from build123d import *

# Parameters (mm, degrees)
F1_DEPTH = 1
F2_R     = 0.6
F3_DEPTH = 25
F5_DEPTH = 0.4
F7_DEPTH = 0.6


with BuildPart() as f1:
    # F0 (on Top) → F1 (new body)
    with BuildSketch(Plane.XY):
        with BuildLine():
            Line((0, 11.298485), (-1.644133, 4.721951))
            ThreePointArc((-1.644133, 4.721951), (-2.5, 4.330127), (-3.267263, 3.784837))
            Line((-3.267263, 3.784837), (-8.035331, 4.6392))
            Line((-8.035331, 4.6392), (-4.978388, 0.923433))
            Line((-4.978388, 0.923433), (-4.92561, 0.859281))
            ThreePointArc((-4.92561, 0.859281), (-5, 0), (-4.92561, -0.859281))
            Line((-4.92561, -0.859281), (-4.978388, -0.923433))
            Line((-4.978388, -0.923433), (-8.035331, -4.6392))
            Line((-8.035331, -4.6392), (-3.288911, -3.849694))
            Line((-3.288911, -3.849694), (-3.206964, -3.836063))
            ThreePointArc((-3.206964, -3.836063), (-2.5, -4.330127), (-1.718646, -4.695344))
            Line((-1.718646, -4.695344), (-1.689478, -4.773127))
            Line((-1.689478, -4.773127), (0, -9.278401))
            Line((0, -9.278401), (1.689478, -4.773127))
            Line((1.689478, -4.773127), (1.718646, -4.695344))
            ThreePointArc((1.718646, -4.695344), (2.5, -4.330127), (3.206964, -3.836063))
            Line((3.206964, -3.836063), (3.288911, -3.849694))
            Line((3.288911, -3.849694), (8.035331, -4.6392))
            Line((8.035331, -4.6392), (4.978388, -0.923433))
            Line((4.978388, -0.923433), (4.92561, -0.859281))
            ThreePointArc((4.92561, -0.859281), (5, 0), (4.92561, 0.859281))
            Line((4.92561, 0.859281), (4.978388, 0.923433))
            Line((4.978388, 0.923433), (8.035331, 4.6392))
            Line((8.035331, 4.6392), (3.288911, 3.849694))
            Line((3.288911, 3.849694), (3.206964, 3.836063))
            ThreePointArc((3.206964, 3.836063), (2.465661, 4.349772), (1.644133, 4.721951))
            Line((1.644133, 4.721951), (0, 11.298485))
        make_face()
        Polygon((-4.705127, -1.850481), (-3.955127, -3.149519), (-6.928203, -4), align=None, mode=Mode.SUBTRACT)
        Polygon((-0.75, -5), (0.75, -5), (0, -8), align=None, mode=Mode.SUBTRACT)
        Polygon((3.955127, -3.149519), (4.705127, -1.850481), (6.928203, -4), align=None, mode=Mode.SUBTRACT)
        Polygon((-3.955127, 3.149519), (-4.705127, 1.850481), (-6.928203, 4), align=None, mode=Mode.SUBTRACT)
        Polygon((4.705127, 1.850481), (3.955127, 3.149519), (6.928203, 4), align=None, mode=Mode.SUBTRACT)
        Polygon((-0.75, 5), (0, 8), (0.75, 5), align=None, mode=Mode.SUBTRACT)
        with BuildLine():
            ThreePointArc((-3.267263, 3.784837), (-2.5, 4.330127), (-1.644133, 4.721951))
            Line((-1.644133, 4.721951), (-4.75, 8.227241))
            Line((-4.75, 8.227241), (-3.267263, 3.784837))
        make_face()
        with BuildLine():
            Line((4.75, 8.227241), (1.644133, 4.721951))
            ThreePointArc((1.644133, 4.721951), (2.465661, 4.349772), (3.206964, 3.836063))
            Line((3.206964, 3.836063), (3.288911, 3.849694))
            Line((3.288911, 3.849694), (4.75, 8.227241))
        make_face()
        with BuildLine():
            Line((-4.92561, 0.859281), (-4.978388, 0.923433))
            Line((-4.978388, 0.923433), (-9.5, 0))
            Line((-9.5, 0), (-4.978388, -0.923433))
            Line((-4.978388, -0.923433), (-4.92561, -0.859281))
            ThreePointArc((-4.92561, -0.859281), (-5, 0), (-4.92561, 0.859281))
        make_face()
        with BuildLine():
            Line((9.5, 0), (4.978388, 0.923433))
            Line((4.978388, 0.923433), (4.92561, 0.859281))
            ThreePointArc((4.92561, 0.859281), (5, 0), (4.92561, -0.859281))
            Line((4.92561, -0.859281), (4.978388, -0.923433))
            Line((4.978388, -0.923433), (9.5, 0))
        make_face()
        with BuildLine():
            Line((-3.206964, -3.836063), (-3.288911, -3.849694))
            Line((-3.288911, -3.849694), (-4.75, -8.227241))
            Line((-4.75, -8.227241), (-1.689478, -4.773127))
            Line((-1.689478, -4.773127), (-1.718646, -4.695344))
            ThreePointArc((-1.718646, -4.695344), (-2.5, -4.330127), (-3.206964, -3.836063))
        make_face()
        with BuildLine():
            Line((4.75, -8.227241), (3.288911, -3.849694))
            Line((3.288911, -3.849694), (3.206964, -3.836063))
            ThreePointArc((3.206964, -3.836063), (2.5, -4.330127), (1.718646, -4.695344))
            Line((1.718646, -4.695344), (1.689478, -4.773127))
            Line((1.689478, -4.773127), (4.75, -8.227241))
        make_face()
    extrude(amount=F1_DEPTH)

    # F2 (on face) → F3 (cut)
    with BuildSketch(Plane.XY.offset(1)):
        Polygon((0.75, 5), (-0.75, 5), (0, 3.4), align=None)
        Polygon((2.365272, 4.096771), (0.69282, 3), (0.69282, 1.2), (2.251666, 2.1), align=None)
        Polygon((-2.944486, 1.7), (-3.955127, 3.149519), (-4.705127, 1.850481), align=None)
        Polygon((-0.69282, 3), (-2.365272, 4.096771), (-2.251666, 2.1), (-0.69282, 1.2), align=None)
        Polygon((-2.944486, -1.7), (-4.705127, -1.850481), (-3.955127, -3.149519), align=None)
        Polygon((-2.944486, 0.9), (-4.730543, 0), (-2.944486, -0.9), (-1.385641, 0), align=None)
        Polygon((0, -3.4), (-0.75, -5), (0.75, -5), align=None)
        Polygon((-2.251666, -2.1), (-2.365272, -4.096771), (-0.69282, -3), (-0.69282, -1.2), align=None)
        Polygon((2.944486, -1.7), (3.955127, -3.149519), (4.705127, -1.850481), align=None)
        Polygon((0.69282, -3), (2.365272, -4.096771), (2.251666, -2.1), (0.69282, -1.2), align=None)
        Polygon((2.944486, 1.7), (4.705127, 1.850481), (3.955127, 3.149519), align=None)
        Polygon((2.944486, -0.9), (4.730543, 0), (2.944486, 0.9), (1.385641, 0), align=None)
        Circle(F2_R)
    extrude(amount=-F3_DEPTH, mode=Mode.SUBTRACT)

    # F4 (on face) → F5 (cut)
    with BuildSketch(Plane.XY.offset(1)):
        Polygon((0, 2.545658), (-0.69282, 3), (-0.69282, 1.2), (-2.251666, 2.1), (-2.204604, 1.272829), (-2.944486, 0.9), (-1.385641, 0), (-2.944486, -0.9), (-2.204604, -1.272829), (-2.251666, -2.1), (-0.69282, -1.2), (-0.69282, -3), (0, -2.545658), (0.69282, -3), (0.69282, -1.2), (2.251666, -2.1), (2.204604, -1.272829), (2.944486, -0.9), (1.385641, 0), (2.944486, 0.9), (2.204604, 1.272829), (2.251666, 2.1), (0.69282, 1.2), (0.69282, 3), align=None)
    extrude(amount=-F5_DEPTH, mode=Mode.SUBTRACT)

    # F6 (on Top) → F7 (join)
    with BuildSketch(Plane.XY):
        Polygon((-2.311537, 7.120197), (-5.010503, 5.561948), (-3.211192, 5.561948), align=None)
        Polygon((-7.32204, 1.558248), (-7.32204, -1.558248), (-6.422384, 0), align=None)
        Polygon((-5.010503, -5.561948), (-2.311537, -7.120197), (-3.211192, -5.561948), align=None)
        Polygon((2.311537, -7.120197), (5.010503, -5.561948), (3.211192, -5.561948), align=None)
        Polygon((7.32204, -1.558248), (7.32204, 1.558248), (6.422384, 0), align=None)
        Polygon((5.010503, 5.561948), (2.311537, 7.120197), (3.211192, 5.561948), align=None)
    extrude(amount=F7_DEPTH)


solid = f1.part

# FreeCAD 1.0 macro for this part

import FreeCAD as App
import Part
import Sketcher

V = App.Vector
Q = App.Units.Quantity

doc = App.newDocument("Part")
body = doc.addObject("PartDesign::Body", "Body")

sketch1 = doc.addObject("Sketcher::SketchObject", "Sketch")
body.addObject(sketch1)
sketch1.AttachmentSupport = (doc.XY_Plane, [""])
sketch1.MapMode = "FlatFace"
sketch1.addGeometry([
    Part.LineSegment(V(0, 11.3, 0), V(-1.6, 4.7, 0)),
    Part.LineSegment(V(-1.6, 4.7, 0), V(-4.8, 8.2, 0)),
    Part.LineSegment(V(-4.8, 8.2, 0), V(-3.3, 3.8, 0)),
    Part.LineSegment(V(-3.3, 3.8, 0), V(-8, 4.6, 0)),
    Part.LineSegment(V(-8, 4.6, 0), V(-5, 0.9, 0)),
    Part.LineSegment(V(-5, 0.9, 0), V(-9.5, 0, 0)),
    Part.LineSegment(V(-9.5, 0, 0), V(-5, -0.9, 0)),
    Part.LineSegment(V(-5, -0.9, 0), V(-8, -4.6, 0)),
    Part.LineSegment(V(-8, -4.6, 0), V(-3.3, -3.8, 0)),
    Part.LineSegment(V(-3.3, -3.8, 0), V(-4.8, -8.2, 0)),
    Part.LineSegment(V(-4.8, -8.2, 0), V(-1.7, -4.8, 0)),
    Part.LineSegment(V(-1.7, -4.8, 0), V(0, -9.3, 0)),
    Part.LineSegment(V(0, -9.3, 0), V(1.7, -4.8, 0)),
    Part.LineSegment(V(1.7, -4.8, 0), V(4.8, -8.2, 0)),
    Part.LineSegment(V(4.8, -8.2, 0), V(3.3, -3.8, 0)),
    Part.LineSegment(V(3.3, -3.8, 0), V(8, -4.6, 0)),
    Part.LineSegment(V(8, -4.6, 0), V(5, -0.9, 0)),
    Part.LineSegment(V(5, -0.9, 0), V(9.5, 0, 0)),
    Part.LineSegment(V(9.5, 0, 0), V(5, 0.9, 0)),
    Part.LineSegment(V(5, 0.9, 0), V(8, 4.6, 0)),
    Part.LineSegment(V(8, 4.6, 0), V(3.3, 3.8, 0)),
    Part.LineSegment(V(3.3, 3.8, 0), V(4.8, 8.2, 0)),
    Part.LineSegment(V(4.8, 8.2, 0), V(1.6, 4.7, 0)),
    Part.LineSegment(V(1.6, 4.7, 0), V(0, 11.3, 0)),
    Part.LineSegment(V(-6.9, -4, 0), V(-4.7, -1.9, 0)),
    Part.LineSegment(V(-4.7, -1.9, 0), V(-4, -3.1, 0)),
    Part.LineSegment(V(-4, -3.1, 0), V(-6.9, -4, 0)),
    Part.LineSegment(V(0, -8, 0), V(-0.8, -5, 0)),
    Part.LineSegment(V(-0.8, -5, 0), V(0.8, -5, 0)),
    Part.LineSegment(V(0.8, -5, 0), V(0, -8, 0)),
    Part.LineSegment(V(6.9, -4, 0), V(4, -3.1, 0)),
    Part.LineSegment(V(4, -3.1, 0), V(4.7, -1.9, 0)),
    Part.LineSegment(V(4.7, -1.9, 0), V(6.9, -4, 0)),
    Part.LineSegment(V(-6.9, 4, 0), V(-4, 3.1, 0)),
    Part.LineSegment(V(-4, 3.1, 0), V(-4.7, 1.9, 0)),
    Part.LineSegment(V(-4.7, 1.9, 0), V(-6.9, 4, 0)),
    Part.LineSegment(V(6.9, 4, 0), V(4.7, 1.9, 0)),
    Part.LineSegment(V(4.7, 1.9, 0), V(4, 3.1, 0)),
    Part.LineSegment(V(4, 3.1, 0), V(6.9, 4, 0)),
    Part.LineSegment(V(0.8, 5, 0), V(-0.8, 5, 0)),
    Part.LineSegment(V(-0.8, 5, 0), V(0, 8, 0)),
    Part.LineSegment(V(0, 8, 0), V(0.8, 5, 0)),
], False)
sketch1.addConstraint([
    Sketcher.Constraint("Coincident", 0, 2, 1, 1),
    Sketcher.Constraint("Coincident", 1, 2, 2, 1),
    Sketcher.Constraint("Coincident", 2, 2, 3, 1),
    Sketcher.Constraint("Coincident", 3, 2, 4, 1),
    Sketcher.Constraint("Coincident", 4, 2, 5, 1),
    Sketcher.Constraint("Coincident", 5, 2, 6, 1),
    Sketcher.Constraint("Coincident", 6, 2, 7, 1),
    Sketcher.Constraint("Coincident", 7, 2, 8, 1),
    Sketcher.Constraint("Coincident", 8, 2, 9, 1),
    Sketcher.Constraint("Coincident", 9, 2, 10, 1),
    Sketcher.Constraint("Coincident", 10, 2, 11, 1),
    Sketcher.Constraint("Coincident", 11, 2, 12, 1),
    Sketcher.Constraint("Coincident", 12, 2, 13, 1),
    Sketcher.Constraint("Coincident", 13, 2, 14, 1),
    Sketcher.Constraint("Coincident", 14, 2, 15, 1),
    Sketcher.Constraint("Coincident", 15, 2, 16, 1),
    Sketcher.Constraint("Coincident", 16, 2, 17, 1),
    Sketcher.Constraint("Coincident", 17, 2, 18, 1),
    Sketcher.Constraint("Coincident", 18, 2, 19, 1),
    Sketcher.Constraint("Coincident", 19, 2, 20, 1),
    Sketcher.Constraint("Coincident", 20, 2, 21, 1),
    Sketcher.Constraint("Coincident", 21, 2, 22, 1),
    Sketcher.Constraint("Coincident", 22, 2, 23, 1),
    Sketcher.Constraint("Coincident", 23, 2, 0, 1),
    Sketcher.Constraint("Coincident", 24, 2, 25, 1),
    Sketcher.Constraint("Coincident", 25, 2, 26, 1),
    Sketcher.Constraint("Coincident", 26, 2, 24, 1),
    Sketcher.Constraint("Coincident", 27, 2, 28, 1),
    Sketcher.Constraint("Coincident", 28, 2, 29, 1),
    Sketcher.Constraint("Coincident", 29, 2, 27, 1),
    Sketcher.Constraint("Coincident", 30, 2, 31, 1),
    Sketcher.Constraint("Coincident", 31, 2, 32, 1),
    Sketcher.Constraint("Coincident", 32, 2, 30, 1),
    Sketcher.Constraint("Coincident", 33, 2, 34, 1),
    Sketcher.Constraint("Coincident", 34, 2, 35, 1),
    Sketcher.Constraint("Coincident", 35, 2, 33, 1),
    Sketcher.Constraint("Coincident", 36, 2, 37, 1),
    Sketcher.Constraint("Coincident", 37, 2, 38, 1),
    Sketcher.Constraint("Coincident", 38, 2, 36, 1),
    Sketcher.Constraint("Coincident", 39, 2, 40, 1),
    Sketcher.Constraint("Coincident", 40, 2, 41, 1),
    Sketcher.Constraint("Coincident", 41, 2, 39, 1),
    Sketcher.Constraint("Horizontal", 28),
    Sketcher.Constraint("Horizontal", 39),
    Sketcher.Constraint("Symmetric", 1, 2, 13, 2, -1, 1),
    Sketcher.Constraint("Symmetric", 3, 2, 15, 2, -1, 1),
    Sketcher.Constraint("Symmetric", 4, 2, 16, 2, -1, 1),
    Sketcher.Constraint("Symmetric", 5, 2, 17, 2, -1, 1),
    Sketcher.Constraint("Symmetric", 6, 2, 18, 2, -1, 1),
    Sketcher.Constraint("Symmetric", 7, 2, 19, 2, -1, 1),
    Sketcher.Constraint("Symmetric", 8, 2, 20, 2, -1, 1),
    Sketcher.Constraint("Symmetric", 9, 2, 21, 2, -1, 1),
    Sketcher.Constraint("Symmetric", 30, 2, 33, 2, -1, 1),
    Sketcher.Constraint("Symmetric", 31, 2, 34, 2, -1, 1),
    Sketcher.Constraint("Symmetric", 32, 2, 35, 2, -1, 1),
    Sketcher.Constraint("Symmetric", 24, 2, 36, 2, -1, 1),
    Sketcher.Constraint("Symmetric", 25, 2, 37, 2, -1, 1),
    Sketcher.Constraint("Symmetric", 26, 2, 38, 2, -1, 1),
    Sketcher.Constraint("Symmetric", 28, 2, 39, 2, -1, 1),
    Sketcher.Constraint("Symmetric", 29, 2, 40, 2, -1, 1),
    Sketcher.Constraint("Symmetric", 10, 2, 12, 2, -2),
    Sketcher.Constraint("Symmetric", 9, 2, 13, 2, -2),
    Sketcher.Constraint("Symmetric", 8, 2, 14, 2, -2),
    Sketcher.Constraint("Symmetric", 7, 2, 15, 2, -2),
    Sketcher.Constraint("Symmetric", 6, 2, 16, 2, -2),
    Sketcher.Constraint("Symmetric", 0, 2, 22, 2, -2),
    Sketcher.Constraint("Symmetric", 25, 2, 30, 2, -2),
    Sketcher.Constraint("Symmetric", 24, 2, 31, 2, -2),
    Sketcher.Constraint("Symmetric", 26, 2, 32, 2, -2),
    Sketcher.Constraint("PointOnObject", 5, 2, -1),
    Sketcher.Constraint("PointOnObject", 11, 2, -2),
    Sketcher.Constraint("PointOnObject", 23, 2, -2),
    Sketcher.Constraint("PointOnObject", 29, 2, -2),
    Sketcher.Constraint("Parallel", 1, 13),
    Sketcher.Constraint("Parallel", 2, 14),
    Sketcher.Constraint("Parallel", 23, 27),
    Sketcher.Constraint("Parallel", 0, 29),
    Sketcher.Constraint("Parallel", 27, 41),
    Sketcher.Constraint("Equal", 1, 2),
    Sketcher.Constraint("Equal", 7, 8),
    Sketcher.Constraint("Equal", 6, 9),
    Sketcher.Constraint("Equal", 9, 10),
    Sketcher.Constraint("Equal", 8, 11),
    Sketcher.Constraint("Equal", 24, 26),
    Sketcher.Constraint("Equal", 26, 27),
    Sketcher.Constraint("Angle", 25, Q("-59.999998 deg")),
    Sketcher.Constraint("DistanceX", 28, 1, 28, 2, Q("1.5 mm")),
    Sketcher.Constraint("DistanceY", 26, 2, -1, 1, Q("4 mm")),
    Sketcher.Constraint("DistanceY", 27, 2, -1, 1, Q("5 mm")),
    Sketcher.Constraint("DistanceY", 29, 2, -1, 1, Q("8 mm")),
    Sketcher.Constraint("Distance", 25, Q("1.5 mm")),
    Sketcher.Constraint("DistanceX", 5, 2, -1, 1, Q("9.5 mm")),
    Sketcher.Constraint("DistanceX", 9, 2, 13, 2, Q("9.5 mm")),
    Sketcher.Constraint("DistanceY", -1, 1, 3, 2, Q("4.6392 mm")),
    Sketcher.Constraint("DistanceY", 11, 2, -1, 1, Q("9.278401 mm")),
    Sketcher.Constraint("Distance", 1, Q("4.683318 mm")),
    Sketcher.Constraint("DistanceY", -1, 1, 0, 2, Q("4.721951 mm")),
    Sketcher.Constraint("DistanceY", -1, 1, 1, 2, Q("8.227241 mm")),
    Sketcher.Constraint("DistanceX", 3, 2, -1, 1, Q("8.035331 mm")),
    Sketcher.Constraint("DistanceX", 8, 2, -1, 1, Q("3.288911 mm")),
    Sketcher.Constraint("DistanceX", 6, 2, 24, 2, Q("0.273261 mm")),
])
pad1 = doc.addObject("PartDesign::Pad", "Pad")
body.addObject(pad1)
pad1.Profile = sketch1
pad1.Length = 1

sketch2 = doc.addObject("Sketcher::SketchObject", "Sketch001")
body.addObject(sketch2)
sketch2.AttachmentSupport = (doc.XY_Plane, [""])
sketch2.MapMode = "FlatFace"
sketch2.AttachmentOffset = App.Placement(V(0, 0, 1), App.Rotation())
sketch2.addGeometry([
    Part.LineSegment(V(0.8, 5, 0), V(-0.8, 5, 0)),
    Part.LineSegment(V(-0.8, 5, 0), V(0, 3.4, 0)),
    Part.LineSegment(V(0, 3.4, 0), V(0.8, 5, 0)),
    Part.LineSegment(V(2.4, 4.1, 0), V(0.7, 3, 0)),
    Part.LineSegment(V(0.7, 3, 0), V(0.7, 1.2, 0)),
    Part.LineSegment(V(0.7, 1.2, 0), V(2.3, 2.1, 0)),
    Part.LineSegment(V(2.3, 2.1, 0), V(2.4, 4.1, 0)),
    Part.LineSegment(V(-2.9, 1.7, 0), V(-4, 3.1, 0)),
    Part.LineSegment(V(-4, 3.1, 0), V(-4.7, 1.9, 0)),
    Part.LineSegment(V(-4.7, 1.9, 0), V(-2.9, 1.7, 0)),
    Part.LineSegment(V(-0.7, 3, 0), V(-2.4, 4.1, 0)),
    Part.LineSegment(V(-2.4, 4.1, 0), V(-2.3, 2.1, 0)),
    Part.LineSegment(V(-2.3, 2.1, 0), V(-0.7, 1.2, 0)),
    Part.LineSegment(V(-0.7, 1.2, 0), V(-0.7, 3, 0)),
    Part.LineSegment(V(-2.9, -1.7, 0), V(-4.7, -1.9, 0)),
    Part.LineSegment(V(-4.7, -1.9, 0), V(-4, -3.1, 0)),
    Part.LineSegment(V(-4, -3.1, 0), V(-2.9, -1.7, 0)),
    Part.LineSegment(V(-2.9, 0.9, 0), V(-4.7, 0, 0)),
    Part.LineSegment(V(-4.7, 0, 0), V(-2.9, -0.9, 0)),
    Part.LineSegment(V(-2.9, -0.9, 0), V(-1.4, 0, 0)),
    Part.LineSegment(V(-1.4, 0, 0), V(-2.9, 0.9, 0)),
    Part.LineSegment(V(0, -3.4, 0), V(-0.8, -5, 0)),
    Part.LineSegment(V(-0.8, -5, 0), V(0.8, -5, 0)),
    Part.LineSegment(V(0.8, -5, 0), V(0, -3.4, 0)),
    Part.LineSegment(V(-2.3, -2.1, 0), V(-2.4, -4.1, 0)),
    Part.LineSegment(V(-2.4, -4.1, 0), V(-0.7, -3, 0)),
    Part.LineSegment(V(-0.7, -3, 0), V(-0.7, -1.2, 0)),
    Part.LineSegment(V(-0.7, -1.2, 0), V(-2.3, -2.1, 0)),
    Part.LineSegment(V(2.9, -1.7, 0), V(4, -3.1, 0)),
    Part.LineSegment(V(4, -3.1, 0), V(4.7, -1.9, 0)),
    Part.LineSegment(V(4.7, -1.9, 0), V(2.9, -1.7, 0)),
    Part.LineSegment(V(0.7, -3, 0), V(2.4, -4.1, 0)),
    Part.LineSegment(V(2.4, -4.1, 0), V(2.3, -2.1, 0)),
    Part.LineSegment(V(2.3, -2.1, 0), V(0.7, -1.2, 0)),
    Part.LineSegment(V(0.7, -1.2, 0), V(0.7, -3, 0)),
    Part.LineSegment(V(2.9, 1.7, 0), V(4.7, 1.9, 0)),
    Part.LineSegment(V(4.7, 1.9, 0), V(4, 3.1, 0)),
    Part.LineSegment(V(4, 3.1, 0), V(2.9, 1.7, 0)),
    Part.LineSegment(V(2.9, -0.9, 0), V(4.7, 0, 0)),
    Part.LineSegment(V(4.7, 0, 0), V(2.9, 0.9, 0)),
    Part.LineSegment(V(2.9, 0.9, 0), V(1.4, 0, 0)),
    Part.LineSegment(V(1.4, 0, 0), V(2.9, -0.9, 0)),
    Part.Circle(V(0, 0, 0), V(0, 0, 1), 0.6),
], False)
sketch2.addConstraint([
    Sketcher.Constraint("Coincident", 0, 2, 1, 1),
    Sketcher.Constraint("Coincident", 1, 2, 2, 1),
    Sketcher.Constraint("Coincident", 2, 2, 0, 1),
    Sketcher.Constraint("Coincident", 3, 2, 4, 1),
    Sketcher.Constraint("Coincident", 4, 2, 5, 1),
    Sketcher.Constraint("Coincident", 5, 2, 6, 1),
    Sketcher.Constraint("Coincident", 6, 2, 3, 1),
    Sketcher.Constraint("Coincident", 7, 2, 8, 1),
    Sketcher.Constraint("Coincident", 8, 2, 9, 1),
    Sketcher.Constraint("Coincident", 9, 2, 7, 1),
    Sketcher.Constraint("Coincident", 10, 2, 11, 1),
    Sketcher.Constraint("Coincident", 11, 2, 12, 1),
    Sketcher.Constraint("Coincident", 12, 2, 13, 1),
    Sketcher.Constraint("Coincident", 13, 2, 10, 1),
    Sketcher.Constraint("Coincident", 14, 2, 15, 1),
    Sketcher.Constraint("Coincident", 15, 2, 16, 1),
    Sketcher.Constraint("Coincident", 16, 2, 14, 1),
    Sketcher.Constraint("Coincident", 17, 2, 18, 1),
    Sketcher.Constraint("Coincident", 18, 2, 19, 1),
    Sketcher.Constraint("Coincident", 19, 2, 20, 1),
    Sketcher.Constraint("Coincident", 20, 2, 17, 1),
    Sketcher.Constraint("Coincident", 21, 2, 22, 1),
    Sketcher.Constraint("Coincident", 22, 2, 23, 1),
    Sketcher.Constraint("Coincident", 23, 2, 21, 1),
    Sketcher.Constraint("Coincident", 24, 2, 25, 1),
    Sketcher.Constraint("Coincident", 25, 2, 26, 1),
    Sketcher.Constraint("Coincident", 26, 2, 27, 1),
    Sketcher.Constraint("Coincident", 27, 2, 24, 1),
    Sketcher.Constraint("Coincident", 28, 2, 29, 1),
    Sketcher.Constraint("Coincident", 29, 2, 30, 1),
    Sketcher.Constraint("Coincident", 30, 2, 28, 1),
    Sketcher.Constraint("Coincident", 31, 2, 32, 1),
    Sketcher.Constraint("Coincident", 32, 2, 33, 1),
    Sketcher.Constraint("Coincident", 33, 2, 34, 1),
    Sketcher.Constraint("Coincident", 34, 2, 31, 1),
    Sketcher.Constraint("Coincident", 35, 2, 36, 1),
    Sketcher.Constraint("Coincident", 36, 2, 37, 1),
    Sketcher.Constraint("Coincident", 37, 2, 35, 1),
    Sketcher.Constraint("Coincident", 38, 2, 39, 1),
    Sketcher.Constraint("Coincident", 39, 2, 40, 1),
    Sketcher.Constraint("Coincident", 40, 2, 41, 1),
    Sketcher.Constraint("Coincident", 41, 2, 38, 1),
    Sketcher.Constraint("Horizontal", 0),
    Sketcher.Constraint("Vertical", 4),
    Sketcher.Constraint("Vertical", 13),
    Sketcher.Constraint("Horizontal", 22),
    Sketcher.Constraint("Vertical", 26),
    Sketcher.Constraint("Vertical", 34),
    Sketcher.Constraint("Coincident", 42, 3, -1, 1),
    Sketcher.Constraint("Symmetric", 2, 2, 21, 2, -1, 1),
    Sketcher.Constraint("Symmetric", 1, 2, 23, 2, -1, 1),
    Sketcher.Constraint("Symmetric", 6, 2, 24, 2, -1, 1),
    Sketcher.Constraint("Symmetric", 3, 2, 25, 2, -1, 1),
    Sketcher.Constraint("Symmetric", 5, 2, 27, 2, -1, 1),
    Sketcher.Constraint("Symmetric", 7, 2, 28, 2, -1, 1),
    Sketcher.Constraint("Symmetric", 8, 2, 29, 2, -1, 1),
    Sketcher.Constraint("Symmetric", 9, 2, 30, 2, -1, 1),
    Sketcher.Constraint("Symmetric", 10, 2, 31, 2, -1, 1),
    Sketcher.Constraint("Symmetric", 11, 2, 32, 2, -1, 1),
    Sketcher.Constraint("Symmetric", 12, 2, 33, 2, -1, 1),
    Sketcher.Constraint("Symmetric", 14, 2, 35, 2, -1, 1),
    Sketcher.Constraint("Symmetric", 15, 2, 36, 2, -1, 1),
    Sketcher.Constraint("Symmetric", 16, 2, 37, 2, -1, 1),
    Sketcher.Constraint("Symmetric", 17, 2, 38, 2, -1, 1),
    Sketcher.Constraint("Symmetric", 18, 2, 39, 2, -1, 1),
    Sketcher.Constraint("Symmetric", 19, 2, 40, 2, -1, 1),
    Sketcher.Constraint("Symmetric", 20, 2, 41, 2, -1, 1),
    Sketcher.Constraint("Symmetric", 6, 2, 10, 2, -2),
    Sketcher.Constraint("Symmetric", 5, 2, 11, 2, -2),
    Sketcher.Constraint("Symmetric", 4, 2, 12, 2, -2),
    Sketcher.Constraint("Symmetric", 15, 2, 28, 2, -2),
    Sketcher.Constraint("Symmetric", 14, 2, 29, 2, -2),
    Sketcher.Constraint("Symmetric", 16, 2, 30, 2, -2),
    Sketcher.Constraint("Symmetric", 20, 2, 39, 2, -2),
    Sketcher.Constraint("PointOnObject", 1, 2, -2),
    Sketcher.Constraint("PointOnObject", 17, 2, -1),
    Sketcher.Constraint("PointOnObject", 19, 2, -1),
    Sketcher.Constraint("Perpendicular", 8, 12),
    Sketcher.Constraint("Perpendicular", 15, 19),
    Sketcher.Constraint("Parallel", 1, 23),
    Sketcher.Constraint("Parallel", 19, 27),
    Sketcher.Constraint("Parallel", 10, 31),
    Sketcher.Constraint("Horizontal", 3, 2, 13, 2),
    Sketcher.Constraint("Vertical", 16, 2, 18, 2),
    Sketcher.Constraint("Vertical", 0, 2, 21, 2),
    Sketcher.Constraint("Equal", 3, 6),
    Sketcher.Constraint("Equal", 2, 7),
    Sketcher.Constraint("Equal", 7, 9),
    Sketcher.Constraint("Equal", 11, 17),
    Sketcher.Constraint("Equal", 12, 19),
    Sketcher.Constraint("Diameter", 42, Q("1.2 mm")),
    Sketcher.Constraint("Angle", 5, Q("29.999996 deg")),
    Sketcher.Constraint("Distance", 3, Q("2.000001 mm")),
    Sketcher.Constraint("DistanceX", 0, 2, 0, 1, Q("1.5 mm")),
    Sketcher.Constraint("DistanceY", 4, 2, 4, 1, Q("1.8 mm")),
    Sketcher.Constraint("DistanceY", -1, 1, 0, 2, Q("5 mm")),
    Sketcher.Constraint("DistanceY", -1, 1, 3, 2, Q("3 mm")),
    Sketcher.Constraint("DistanceY", 14, 2, 7, 2, Q("5 mm")),
    Sketcher.Constraint("Distance", 5, Q("1.8 mm")),
    Sketcher.Constraint("Distance", 8, Q("1.5 mm")),
    Sketcher.Constraint("DistanceY", -1, 1, 1, 2, Q("3.4 mm")),
    Sketcher.Constraint("DistanceX", -1, 1, 3, 2, Q("0.69282 mm")),
    Sketcher.Constraint("DistanceX", 19, 2, -1, 1, Q("1.385641 mm")),
])
pocket1 = doc.addObject("PartDesign::Pocket", "Pocket")
body.addObject(pocket1)
pocket1.Profile = sketch2
pocket1.Length = 25

sketch3 = doc.addObject("Sketcher::SketchObject", "Sketch002")
body.addObject(sketch3)
sketch3.AttachmentSupport = (doc.XY_Plane, [""])
sketch3.MapMode = "FlatFace"
sketch3.AttachmentOffset = App.Placement(V(0, 0, 1), App.Rotation())
sketch3.addGeometry([
    Part.LineSegment(V(0, 2.5, 0), V(-0.7, 3, 0)),
    Part.LineSegment(V(-0.7, 3, 0), V(-0.7, 1.2, 0)),
    Part.LineSegment(V(-0.7, 1.2, 0), V(-2.3, 2.1, 0)),
    Part.LineSegment(V(-2.3, 2.1, 0), V(-2.2, 1.3, 0)),
    Part.LineSegment(V(-2.2, 1.3, 0), V(-2.9, 0.9, 0)),
    Part.LineSegment(V(-2.9, 0.9, 0), V(-1.4, 0, 0)),
    Part.LineSegment(V(-1.4, 0, 0), V(-2.9, -0.9, 0)),
    Part.LineSegment(V(-2.9, -0.9, 0), V(-2.2, -1.3, 0)),
    Part.LineSegment(V(-2.2, -1.3, 0), V(-2.3, -2.1, 0)),
    Part.LineSegment(V(-2.3, -2.1, 0), V(-0.7, -1.2, 0)),
    Part.LineSegment(V(-0.7, -1.2, 0), V(-0.7, -3, 0)),
    Part.LineSegment(V(-0.7, -3, 0), V(0, -2.5, 0)),
    Part.LineSegment(V(0, -2.5, 0), V(0.7, -3, 0)),
    Part.LineSegment(V(0.7, -3, 0), V(0.7, -1.2, 0)),
    Part.LineSegment(V(0.7, -1.2, 0), V(2.3, -2.1, 0)),
    Part.LineSegment(V(2.3, -2.1, 0), V(2.2, -1.3, 0)),
    Part.LineSegment(V(2.2, -1.3, 0), V(2.9, -0.9, 0)),
    Part.LineSegment(V(2.9, -0.9, 0), V(1.4, 0, 0)),
    Part.LineSegment(V(1.4, 0, 0), V(2.9, 0.9, 0)),
    Part.LineSegment(V(2.9, 0.9, 0), V(2.2, 1.3, 0)),
    Part.LineSegment(V(2.2, 1.3, 0), V(2.3, 2.1, 0)),
    Part.LineSegment(V(2.3, 2.1, 0), V(0.7, 1.2, 0)),
    Part.LineSegment(V(0.7, 1.2, 0), V(0.7, 3, 0)),
    Part.LineSegment(V(0.7, 3, 0), V(0, 2.5, 0)),
], False)
sketch3.addConstraint([
    Sketcher.Constraint("Coincident", 0, 2, 1, 1),
    Sketcher.Constraint("Coincident", 1, 2, 2, 1),
    Sketcher.Constraint("Coincident", 2, 2, 3, 1),
    Sketcher.Constraint("Coincident", 3, 2, 4, 1),
    Sketcher.Constraint("Coincident", 4, 2, 5, 1),
    Sketcher.Constraint("Coincident", 5, 2, 6, 1),
    Sketcher.Constraint("Coincident", 6, 2, 7, 1),
    Sketcher.Constraint("Coincident", 7, 2, 8, 1),
    Sketcher.Constraint("Coincident", 8, 2, 9, 1),
    Sketcher.Constraint("Coincident", 9, 2, 10, 1),
    Sketcher.Constraint("Coincident", 10, 2, 11, 1),
    Sketcher.Constraint("Coincident", 11, 2, 12, 1),
    Sketcher.Constraint("Coincident", 12, 2, 13, 1),
    Sketcher.Constraint("Coincident", 13, 2, 14, 1),
    Sketcher.Constraint("Coincident", 14, 2, 15, 1),
    Sketcher.Constraint("Coincident", 15, 2, 16, 1),
    Sketcher.Constraint("Coincident", 16, 2, 17, 1),
    Sketcher.Constraint("Coincident", 17, 2, 18, 1),
    Sketcher.Constraint("Coincident", 18, 2, 19, 1),
    Sketcher.Constraint("Coincident", 19, 2, 20, 1),
    Sketcher.Constraint("Coincident", 20, 2, 21, 1),
    Sketcher.Constraint("Coincident", 21, 2, 22, 1),
    Sketcher.Constraint("Coincident", 22, 2, 23, 1),
    Sketcher.Constraint("Coincident", 23, 2, 0, 1),
    Sketcher.Constraint("Vertical", 1),
    Sketcher.Constraint("Vertical", 10),
    Sketcher.Constraint("Vertical", 13),
    Sketcher.Constraint("Vertical", 22),
    Sketcher.Constraint("Symmetric", 0, 2, 12, 2, -1, 1),
    Sketcher.Constraint("Symmetric", 2, 2, 14, 2, -1, 1),
    Sketcher.Constraint("Symmetric", 3, 2, 15, 2, -1, 1),
    Sketcher.Constraint("Symmetric", 4, 2, 16, 2, -1, 1),
    Sketcher.Constraint("Symmetric", 5, 2, 17, 2, -1, 1),
    Sketcher.Constraint("Symmetric", 6, 2, 18, 2, -1, 1),
    Sketcher.Constraint("Symmetric", 7, 2, 19, 2, -1, 1),
    Sketcher.Constraint("Symmetric", 8, 2, 20, 2, -1, 1),
    Sketcher.Constraint("Symmetric", 9, 2, 21, 2, -1, 1),
    Sketcher.Constraint("Symmetric", 11, 2, 23, 2, -1, 1),
    Sketcher.Constraint("Symmetric", 10, 2, 12, 2, -2),
    Sketcher.Constraint("Symmetric", 8, 2, 14, 2, -2),
    Sketcher.Constraint("Symmetric", 7, 2, 15, 2, -2),
    Sketcher.Constraint("Symmetric", 6, 2, 16, 2, -2),
    Sketcher.Constraint("PointOnObject", 5, 2, -1),
    Sketcher.Constraint("PointOnObject", 11, 2, -2),
    Sketcher.Constraint("Parallel", 2, 5),
    Sketcher.Constraint("Parallel", 6, 9),
    Sketcher.Constraint("Parallel", 5, 14),
    Sketcher.Constraint("Parallel", 11, 23),
    Sketcher.Constraint("Equal", 0, 3),
    Sketcher.Constraint("Equal", 3, 4),
    Sketcher.Constraint("Equal", 2, 5),
    Sketcher.Constraint("Angle", 2, Q("150.000004 deg")),
    Sketcher.Constraint("DistanceY", 1, 2, 1, 1, Q("1.8 mm")),
    Sketcher.Constraint("DistanceY", -1, 1, 0, 2, Q("3 mm")),
    Sketcher.Constraint("DistanceY", 6, 2, 2, 2, Q("3 mm")),
    Sketcher.Constraint("Distance", 0, Q("0.828508 mm")),
    Sketcher.Constraint("DistanceX", 0, 2, -1, 1, Q("0.69282 mm")),
    Sketcher.Constraint("DistanceY", -1, 1, 3, 2, Q("1.272829 mm")),
])
pocket2 = doc.addObject("PartDesign::Pocket", "Pocket001")
body.addObject(pocket2)
pocket2.Profile = sketch3
pocket2.Length = 0.4

sketch4 = doc.addObject("Sketcher::SketchObject", "Sketch003")
body.addObject(sketch4)
sketch4.AttachmentSupport = (doc.XY_Plane, [""])
sketch4.MapMode = "FlatFace"
sketch4.addGeometry([
    Part.LineSegment(V(-2.3, 7.1, 0), V(-5, 5.6, 0)),
    Part.LineSegment(V(-5, 5.6, 0), V(-3.2, 5.6, 0)),
    Part.LineSegment(V(-3.2, 5.6, 0), V(-2.3, 7.1, 0)),
    Part.LineSegment(V(-7.3, 1.6, 0), V(-7.3, -1.6, 0)),
    Part.LineSegment(V(-7.3, -1.6, 0), V(-6.4, 0, 0)),
    Part.LineSegment(V(-6.4, 0, 0), V(-7.3, 1.6, 0)),
    Part.LineSegment(V(-5, -5.6, 0), V(-2.3, -7.1, 0)),
    Part.LineSegment(V(-2.3, -7.1, 0), V(-3.2, -5.6, 0)),
    Part.LineSegment(V(-3.2, -5.6, 0), V(-5, -5.6, 0)),
    Part.LineSegment(V(2.3, -7.1, 0), V(5, -5.6, 0)),
    Part.LineSegment(V(5, -5.6, 0), V(3.2, -5.6, 0)),
    Part.LineSegment(V(3.2, -5.6, 0), V(2.3, -7.1, 0)),
    Part.LineSegment(V(7.3, -1.6, 0), V(7.3, 1.6, 0)),
    Part.LineSegment(V(7.3, 1.6, 0), V(6.4, 0, 0)),
    Part.LineSegment(V(6.4, 0, 0), V(7.3, -1.6, 0)),
    Part.LineSegment(V(5, 5.6, 0), V(2.3, 7.1, 0)),
    Part.LineSegment(V(2.3, 7.1, 0), V(3.2, 5.6, 0)),
    Part.LineSegment(V(3.2, 5.6, 0), V(5, 5.6, 0)),
], False)
sketch4.addConstraint([
    Sketcher.Constraint("Coincident", 0, 2, 1, 1),
    Sketcher.Constraint("Coincident", 1, 2, 2, 1),
    Sketcher.Constraint("Coincident", 2, 2, 0, 1),
    Sketcher.Constraint("Coincident", 3, 2, 4, 1),
    Sketcher.Constraint("Coincident", 4, 2, 5, 1),
    Sketcher.Constraint("Coincident", 5, 2, 3, 1),
    Sketcher.Constraint("Coincident", 6, 2, 7, 1),
    Sketcher.Constraint("Coincident", 7, 2, 8, 1),
    Sketcher.Constraint("Coincident", 8, 2, 6, 1),
    Sketcher.Constraint("Coincident", 9, 2, 10, 1),
    Sketcher.Constraint("Coincident", 10, 2, 11, 1),
    Sketcher.Constraint("Coincident", 11, 2, 9, 1),
    Sketcher.Constraint("Coincident", 12, 2, 13, 1),
    Sketcher.Constraint("Coincident", 13, 2, 14, 1),
    Sketcher.Constraint("Coincident", 14, 2, 12, 1),
    Sketcher.Constraint("Coincident", 15, 2, 16, 1),
    Sketcher.Constraint("Coincident", 16, 2, 17, 1),
    Sketcher.Constraint("Coincident", 17, 2, 15, 1),
    Sketcher.Constraint("Horizontal", 1),
    Sketcher.Constraint("Vertical", 3),
    Sketcher.Constraint("Horizontal", 8),
    Sketcher.Constraint("Horizontal", 10),
    Sketcher.Constraint("Vertical", 12),
    Sketcher.Constraint("Horizontal", 17),
    Sketcher.Constraint("Symmetric", 0, 2, 9, 2, -1, 1),
    Sketcher.Constraint("Symmetric", 2, 2, 11, 2, -1, 1),
    Sketcher.Constraint("Symmetric", 3, 2, 12, 2, -1, 1),
    Sketcher.Constraint("Symmetric", 4, 2, 13, 2, -1, 1),
    Sketcher.Constraint("Symmetric", 6, 2, 15, 2, -1, 1),
    Sketcher.Constraint("Symmetric", 7, 2, 16, 2, -1, 1),
    Sketcher.Constraint("Symmetric", 8, 2, 9, 2, -2),
    Sketcher.Constraint("Symmetric", 6, 2, 11, 2, -2),
    Sketcher.Constraint("PointOnObject", 4, 2, -1),
    Sketcher.Constraint("Parallel", 2, 4),
    Sketcher.Constraint("Perpendicular", 0, 5),
    Sketcher.Constraint("Perpendicular", 4, 6),
    Sketcher.Constraint("Parallel", 5, 7),
    Sketcher.Constraint("Perpendicular", 6, 11),
    Sketcher.Constraint("Perpendicular", 9, 14),
    Sketcher.Constraint("Perpendicular", 13, 15),
    Sketcher.Constraint("Equal", 2, 4),
    Sketcher.Constraint("Angle", 0, Q("-149.999996 deg")),
    Sketcher.Constraint("DistanceX", 1, 1, 1, 2, Q("1.799311 mm")),
    Sketcher.Constraint("DistanceY", 5, 2, 0, 2, Q("4.0037 mm")),
    Sketcher.Constraint("DistanceX", 1, 2, -1, 1, Q("3.211192 mm")),
    Sketcher.Constraint("DistanceX", 3, 2, -1, 1, Q("7.32204 mm")),
])
pad2 = doc.addObject("PartDesign::Pad", "Pad001")
body.addObject(pad2)
pad2.Profile = sketch4
pad2.Length = 0.6

doc.recompute()
